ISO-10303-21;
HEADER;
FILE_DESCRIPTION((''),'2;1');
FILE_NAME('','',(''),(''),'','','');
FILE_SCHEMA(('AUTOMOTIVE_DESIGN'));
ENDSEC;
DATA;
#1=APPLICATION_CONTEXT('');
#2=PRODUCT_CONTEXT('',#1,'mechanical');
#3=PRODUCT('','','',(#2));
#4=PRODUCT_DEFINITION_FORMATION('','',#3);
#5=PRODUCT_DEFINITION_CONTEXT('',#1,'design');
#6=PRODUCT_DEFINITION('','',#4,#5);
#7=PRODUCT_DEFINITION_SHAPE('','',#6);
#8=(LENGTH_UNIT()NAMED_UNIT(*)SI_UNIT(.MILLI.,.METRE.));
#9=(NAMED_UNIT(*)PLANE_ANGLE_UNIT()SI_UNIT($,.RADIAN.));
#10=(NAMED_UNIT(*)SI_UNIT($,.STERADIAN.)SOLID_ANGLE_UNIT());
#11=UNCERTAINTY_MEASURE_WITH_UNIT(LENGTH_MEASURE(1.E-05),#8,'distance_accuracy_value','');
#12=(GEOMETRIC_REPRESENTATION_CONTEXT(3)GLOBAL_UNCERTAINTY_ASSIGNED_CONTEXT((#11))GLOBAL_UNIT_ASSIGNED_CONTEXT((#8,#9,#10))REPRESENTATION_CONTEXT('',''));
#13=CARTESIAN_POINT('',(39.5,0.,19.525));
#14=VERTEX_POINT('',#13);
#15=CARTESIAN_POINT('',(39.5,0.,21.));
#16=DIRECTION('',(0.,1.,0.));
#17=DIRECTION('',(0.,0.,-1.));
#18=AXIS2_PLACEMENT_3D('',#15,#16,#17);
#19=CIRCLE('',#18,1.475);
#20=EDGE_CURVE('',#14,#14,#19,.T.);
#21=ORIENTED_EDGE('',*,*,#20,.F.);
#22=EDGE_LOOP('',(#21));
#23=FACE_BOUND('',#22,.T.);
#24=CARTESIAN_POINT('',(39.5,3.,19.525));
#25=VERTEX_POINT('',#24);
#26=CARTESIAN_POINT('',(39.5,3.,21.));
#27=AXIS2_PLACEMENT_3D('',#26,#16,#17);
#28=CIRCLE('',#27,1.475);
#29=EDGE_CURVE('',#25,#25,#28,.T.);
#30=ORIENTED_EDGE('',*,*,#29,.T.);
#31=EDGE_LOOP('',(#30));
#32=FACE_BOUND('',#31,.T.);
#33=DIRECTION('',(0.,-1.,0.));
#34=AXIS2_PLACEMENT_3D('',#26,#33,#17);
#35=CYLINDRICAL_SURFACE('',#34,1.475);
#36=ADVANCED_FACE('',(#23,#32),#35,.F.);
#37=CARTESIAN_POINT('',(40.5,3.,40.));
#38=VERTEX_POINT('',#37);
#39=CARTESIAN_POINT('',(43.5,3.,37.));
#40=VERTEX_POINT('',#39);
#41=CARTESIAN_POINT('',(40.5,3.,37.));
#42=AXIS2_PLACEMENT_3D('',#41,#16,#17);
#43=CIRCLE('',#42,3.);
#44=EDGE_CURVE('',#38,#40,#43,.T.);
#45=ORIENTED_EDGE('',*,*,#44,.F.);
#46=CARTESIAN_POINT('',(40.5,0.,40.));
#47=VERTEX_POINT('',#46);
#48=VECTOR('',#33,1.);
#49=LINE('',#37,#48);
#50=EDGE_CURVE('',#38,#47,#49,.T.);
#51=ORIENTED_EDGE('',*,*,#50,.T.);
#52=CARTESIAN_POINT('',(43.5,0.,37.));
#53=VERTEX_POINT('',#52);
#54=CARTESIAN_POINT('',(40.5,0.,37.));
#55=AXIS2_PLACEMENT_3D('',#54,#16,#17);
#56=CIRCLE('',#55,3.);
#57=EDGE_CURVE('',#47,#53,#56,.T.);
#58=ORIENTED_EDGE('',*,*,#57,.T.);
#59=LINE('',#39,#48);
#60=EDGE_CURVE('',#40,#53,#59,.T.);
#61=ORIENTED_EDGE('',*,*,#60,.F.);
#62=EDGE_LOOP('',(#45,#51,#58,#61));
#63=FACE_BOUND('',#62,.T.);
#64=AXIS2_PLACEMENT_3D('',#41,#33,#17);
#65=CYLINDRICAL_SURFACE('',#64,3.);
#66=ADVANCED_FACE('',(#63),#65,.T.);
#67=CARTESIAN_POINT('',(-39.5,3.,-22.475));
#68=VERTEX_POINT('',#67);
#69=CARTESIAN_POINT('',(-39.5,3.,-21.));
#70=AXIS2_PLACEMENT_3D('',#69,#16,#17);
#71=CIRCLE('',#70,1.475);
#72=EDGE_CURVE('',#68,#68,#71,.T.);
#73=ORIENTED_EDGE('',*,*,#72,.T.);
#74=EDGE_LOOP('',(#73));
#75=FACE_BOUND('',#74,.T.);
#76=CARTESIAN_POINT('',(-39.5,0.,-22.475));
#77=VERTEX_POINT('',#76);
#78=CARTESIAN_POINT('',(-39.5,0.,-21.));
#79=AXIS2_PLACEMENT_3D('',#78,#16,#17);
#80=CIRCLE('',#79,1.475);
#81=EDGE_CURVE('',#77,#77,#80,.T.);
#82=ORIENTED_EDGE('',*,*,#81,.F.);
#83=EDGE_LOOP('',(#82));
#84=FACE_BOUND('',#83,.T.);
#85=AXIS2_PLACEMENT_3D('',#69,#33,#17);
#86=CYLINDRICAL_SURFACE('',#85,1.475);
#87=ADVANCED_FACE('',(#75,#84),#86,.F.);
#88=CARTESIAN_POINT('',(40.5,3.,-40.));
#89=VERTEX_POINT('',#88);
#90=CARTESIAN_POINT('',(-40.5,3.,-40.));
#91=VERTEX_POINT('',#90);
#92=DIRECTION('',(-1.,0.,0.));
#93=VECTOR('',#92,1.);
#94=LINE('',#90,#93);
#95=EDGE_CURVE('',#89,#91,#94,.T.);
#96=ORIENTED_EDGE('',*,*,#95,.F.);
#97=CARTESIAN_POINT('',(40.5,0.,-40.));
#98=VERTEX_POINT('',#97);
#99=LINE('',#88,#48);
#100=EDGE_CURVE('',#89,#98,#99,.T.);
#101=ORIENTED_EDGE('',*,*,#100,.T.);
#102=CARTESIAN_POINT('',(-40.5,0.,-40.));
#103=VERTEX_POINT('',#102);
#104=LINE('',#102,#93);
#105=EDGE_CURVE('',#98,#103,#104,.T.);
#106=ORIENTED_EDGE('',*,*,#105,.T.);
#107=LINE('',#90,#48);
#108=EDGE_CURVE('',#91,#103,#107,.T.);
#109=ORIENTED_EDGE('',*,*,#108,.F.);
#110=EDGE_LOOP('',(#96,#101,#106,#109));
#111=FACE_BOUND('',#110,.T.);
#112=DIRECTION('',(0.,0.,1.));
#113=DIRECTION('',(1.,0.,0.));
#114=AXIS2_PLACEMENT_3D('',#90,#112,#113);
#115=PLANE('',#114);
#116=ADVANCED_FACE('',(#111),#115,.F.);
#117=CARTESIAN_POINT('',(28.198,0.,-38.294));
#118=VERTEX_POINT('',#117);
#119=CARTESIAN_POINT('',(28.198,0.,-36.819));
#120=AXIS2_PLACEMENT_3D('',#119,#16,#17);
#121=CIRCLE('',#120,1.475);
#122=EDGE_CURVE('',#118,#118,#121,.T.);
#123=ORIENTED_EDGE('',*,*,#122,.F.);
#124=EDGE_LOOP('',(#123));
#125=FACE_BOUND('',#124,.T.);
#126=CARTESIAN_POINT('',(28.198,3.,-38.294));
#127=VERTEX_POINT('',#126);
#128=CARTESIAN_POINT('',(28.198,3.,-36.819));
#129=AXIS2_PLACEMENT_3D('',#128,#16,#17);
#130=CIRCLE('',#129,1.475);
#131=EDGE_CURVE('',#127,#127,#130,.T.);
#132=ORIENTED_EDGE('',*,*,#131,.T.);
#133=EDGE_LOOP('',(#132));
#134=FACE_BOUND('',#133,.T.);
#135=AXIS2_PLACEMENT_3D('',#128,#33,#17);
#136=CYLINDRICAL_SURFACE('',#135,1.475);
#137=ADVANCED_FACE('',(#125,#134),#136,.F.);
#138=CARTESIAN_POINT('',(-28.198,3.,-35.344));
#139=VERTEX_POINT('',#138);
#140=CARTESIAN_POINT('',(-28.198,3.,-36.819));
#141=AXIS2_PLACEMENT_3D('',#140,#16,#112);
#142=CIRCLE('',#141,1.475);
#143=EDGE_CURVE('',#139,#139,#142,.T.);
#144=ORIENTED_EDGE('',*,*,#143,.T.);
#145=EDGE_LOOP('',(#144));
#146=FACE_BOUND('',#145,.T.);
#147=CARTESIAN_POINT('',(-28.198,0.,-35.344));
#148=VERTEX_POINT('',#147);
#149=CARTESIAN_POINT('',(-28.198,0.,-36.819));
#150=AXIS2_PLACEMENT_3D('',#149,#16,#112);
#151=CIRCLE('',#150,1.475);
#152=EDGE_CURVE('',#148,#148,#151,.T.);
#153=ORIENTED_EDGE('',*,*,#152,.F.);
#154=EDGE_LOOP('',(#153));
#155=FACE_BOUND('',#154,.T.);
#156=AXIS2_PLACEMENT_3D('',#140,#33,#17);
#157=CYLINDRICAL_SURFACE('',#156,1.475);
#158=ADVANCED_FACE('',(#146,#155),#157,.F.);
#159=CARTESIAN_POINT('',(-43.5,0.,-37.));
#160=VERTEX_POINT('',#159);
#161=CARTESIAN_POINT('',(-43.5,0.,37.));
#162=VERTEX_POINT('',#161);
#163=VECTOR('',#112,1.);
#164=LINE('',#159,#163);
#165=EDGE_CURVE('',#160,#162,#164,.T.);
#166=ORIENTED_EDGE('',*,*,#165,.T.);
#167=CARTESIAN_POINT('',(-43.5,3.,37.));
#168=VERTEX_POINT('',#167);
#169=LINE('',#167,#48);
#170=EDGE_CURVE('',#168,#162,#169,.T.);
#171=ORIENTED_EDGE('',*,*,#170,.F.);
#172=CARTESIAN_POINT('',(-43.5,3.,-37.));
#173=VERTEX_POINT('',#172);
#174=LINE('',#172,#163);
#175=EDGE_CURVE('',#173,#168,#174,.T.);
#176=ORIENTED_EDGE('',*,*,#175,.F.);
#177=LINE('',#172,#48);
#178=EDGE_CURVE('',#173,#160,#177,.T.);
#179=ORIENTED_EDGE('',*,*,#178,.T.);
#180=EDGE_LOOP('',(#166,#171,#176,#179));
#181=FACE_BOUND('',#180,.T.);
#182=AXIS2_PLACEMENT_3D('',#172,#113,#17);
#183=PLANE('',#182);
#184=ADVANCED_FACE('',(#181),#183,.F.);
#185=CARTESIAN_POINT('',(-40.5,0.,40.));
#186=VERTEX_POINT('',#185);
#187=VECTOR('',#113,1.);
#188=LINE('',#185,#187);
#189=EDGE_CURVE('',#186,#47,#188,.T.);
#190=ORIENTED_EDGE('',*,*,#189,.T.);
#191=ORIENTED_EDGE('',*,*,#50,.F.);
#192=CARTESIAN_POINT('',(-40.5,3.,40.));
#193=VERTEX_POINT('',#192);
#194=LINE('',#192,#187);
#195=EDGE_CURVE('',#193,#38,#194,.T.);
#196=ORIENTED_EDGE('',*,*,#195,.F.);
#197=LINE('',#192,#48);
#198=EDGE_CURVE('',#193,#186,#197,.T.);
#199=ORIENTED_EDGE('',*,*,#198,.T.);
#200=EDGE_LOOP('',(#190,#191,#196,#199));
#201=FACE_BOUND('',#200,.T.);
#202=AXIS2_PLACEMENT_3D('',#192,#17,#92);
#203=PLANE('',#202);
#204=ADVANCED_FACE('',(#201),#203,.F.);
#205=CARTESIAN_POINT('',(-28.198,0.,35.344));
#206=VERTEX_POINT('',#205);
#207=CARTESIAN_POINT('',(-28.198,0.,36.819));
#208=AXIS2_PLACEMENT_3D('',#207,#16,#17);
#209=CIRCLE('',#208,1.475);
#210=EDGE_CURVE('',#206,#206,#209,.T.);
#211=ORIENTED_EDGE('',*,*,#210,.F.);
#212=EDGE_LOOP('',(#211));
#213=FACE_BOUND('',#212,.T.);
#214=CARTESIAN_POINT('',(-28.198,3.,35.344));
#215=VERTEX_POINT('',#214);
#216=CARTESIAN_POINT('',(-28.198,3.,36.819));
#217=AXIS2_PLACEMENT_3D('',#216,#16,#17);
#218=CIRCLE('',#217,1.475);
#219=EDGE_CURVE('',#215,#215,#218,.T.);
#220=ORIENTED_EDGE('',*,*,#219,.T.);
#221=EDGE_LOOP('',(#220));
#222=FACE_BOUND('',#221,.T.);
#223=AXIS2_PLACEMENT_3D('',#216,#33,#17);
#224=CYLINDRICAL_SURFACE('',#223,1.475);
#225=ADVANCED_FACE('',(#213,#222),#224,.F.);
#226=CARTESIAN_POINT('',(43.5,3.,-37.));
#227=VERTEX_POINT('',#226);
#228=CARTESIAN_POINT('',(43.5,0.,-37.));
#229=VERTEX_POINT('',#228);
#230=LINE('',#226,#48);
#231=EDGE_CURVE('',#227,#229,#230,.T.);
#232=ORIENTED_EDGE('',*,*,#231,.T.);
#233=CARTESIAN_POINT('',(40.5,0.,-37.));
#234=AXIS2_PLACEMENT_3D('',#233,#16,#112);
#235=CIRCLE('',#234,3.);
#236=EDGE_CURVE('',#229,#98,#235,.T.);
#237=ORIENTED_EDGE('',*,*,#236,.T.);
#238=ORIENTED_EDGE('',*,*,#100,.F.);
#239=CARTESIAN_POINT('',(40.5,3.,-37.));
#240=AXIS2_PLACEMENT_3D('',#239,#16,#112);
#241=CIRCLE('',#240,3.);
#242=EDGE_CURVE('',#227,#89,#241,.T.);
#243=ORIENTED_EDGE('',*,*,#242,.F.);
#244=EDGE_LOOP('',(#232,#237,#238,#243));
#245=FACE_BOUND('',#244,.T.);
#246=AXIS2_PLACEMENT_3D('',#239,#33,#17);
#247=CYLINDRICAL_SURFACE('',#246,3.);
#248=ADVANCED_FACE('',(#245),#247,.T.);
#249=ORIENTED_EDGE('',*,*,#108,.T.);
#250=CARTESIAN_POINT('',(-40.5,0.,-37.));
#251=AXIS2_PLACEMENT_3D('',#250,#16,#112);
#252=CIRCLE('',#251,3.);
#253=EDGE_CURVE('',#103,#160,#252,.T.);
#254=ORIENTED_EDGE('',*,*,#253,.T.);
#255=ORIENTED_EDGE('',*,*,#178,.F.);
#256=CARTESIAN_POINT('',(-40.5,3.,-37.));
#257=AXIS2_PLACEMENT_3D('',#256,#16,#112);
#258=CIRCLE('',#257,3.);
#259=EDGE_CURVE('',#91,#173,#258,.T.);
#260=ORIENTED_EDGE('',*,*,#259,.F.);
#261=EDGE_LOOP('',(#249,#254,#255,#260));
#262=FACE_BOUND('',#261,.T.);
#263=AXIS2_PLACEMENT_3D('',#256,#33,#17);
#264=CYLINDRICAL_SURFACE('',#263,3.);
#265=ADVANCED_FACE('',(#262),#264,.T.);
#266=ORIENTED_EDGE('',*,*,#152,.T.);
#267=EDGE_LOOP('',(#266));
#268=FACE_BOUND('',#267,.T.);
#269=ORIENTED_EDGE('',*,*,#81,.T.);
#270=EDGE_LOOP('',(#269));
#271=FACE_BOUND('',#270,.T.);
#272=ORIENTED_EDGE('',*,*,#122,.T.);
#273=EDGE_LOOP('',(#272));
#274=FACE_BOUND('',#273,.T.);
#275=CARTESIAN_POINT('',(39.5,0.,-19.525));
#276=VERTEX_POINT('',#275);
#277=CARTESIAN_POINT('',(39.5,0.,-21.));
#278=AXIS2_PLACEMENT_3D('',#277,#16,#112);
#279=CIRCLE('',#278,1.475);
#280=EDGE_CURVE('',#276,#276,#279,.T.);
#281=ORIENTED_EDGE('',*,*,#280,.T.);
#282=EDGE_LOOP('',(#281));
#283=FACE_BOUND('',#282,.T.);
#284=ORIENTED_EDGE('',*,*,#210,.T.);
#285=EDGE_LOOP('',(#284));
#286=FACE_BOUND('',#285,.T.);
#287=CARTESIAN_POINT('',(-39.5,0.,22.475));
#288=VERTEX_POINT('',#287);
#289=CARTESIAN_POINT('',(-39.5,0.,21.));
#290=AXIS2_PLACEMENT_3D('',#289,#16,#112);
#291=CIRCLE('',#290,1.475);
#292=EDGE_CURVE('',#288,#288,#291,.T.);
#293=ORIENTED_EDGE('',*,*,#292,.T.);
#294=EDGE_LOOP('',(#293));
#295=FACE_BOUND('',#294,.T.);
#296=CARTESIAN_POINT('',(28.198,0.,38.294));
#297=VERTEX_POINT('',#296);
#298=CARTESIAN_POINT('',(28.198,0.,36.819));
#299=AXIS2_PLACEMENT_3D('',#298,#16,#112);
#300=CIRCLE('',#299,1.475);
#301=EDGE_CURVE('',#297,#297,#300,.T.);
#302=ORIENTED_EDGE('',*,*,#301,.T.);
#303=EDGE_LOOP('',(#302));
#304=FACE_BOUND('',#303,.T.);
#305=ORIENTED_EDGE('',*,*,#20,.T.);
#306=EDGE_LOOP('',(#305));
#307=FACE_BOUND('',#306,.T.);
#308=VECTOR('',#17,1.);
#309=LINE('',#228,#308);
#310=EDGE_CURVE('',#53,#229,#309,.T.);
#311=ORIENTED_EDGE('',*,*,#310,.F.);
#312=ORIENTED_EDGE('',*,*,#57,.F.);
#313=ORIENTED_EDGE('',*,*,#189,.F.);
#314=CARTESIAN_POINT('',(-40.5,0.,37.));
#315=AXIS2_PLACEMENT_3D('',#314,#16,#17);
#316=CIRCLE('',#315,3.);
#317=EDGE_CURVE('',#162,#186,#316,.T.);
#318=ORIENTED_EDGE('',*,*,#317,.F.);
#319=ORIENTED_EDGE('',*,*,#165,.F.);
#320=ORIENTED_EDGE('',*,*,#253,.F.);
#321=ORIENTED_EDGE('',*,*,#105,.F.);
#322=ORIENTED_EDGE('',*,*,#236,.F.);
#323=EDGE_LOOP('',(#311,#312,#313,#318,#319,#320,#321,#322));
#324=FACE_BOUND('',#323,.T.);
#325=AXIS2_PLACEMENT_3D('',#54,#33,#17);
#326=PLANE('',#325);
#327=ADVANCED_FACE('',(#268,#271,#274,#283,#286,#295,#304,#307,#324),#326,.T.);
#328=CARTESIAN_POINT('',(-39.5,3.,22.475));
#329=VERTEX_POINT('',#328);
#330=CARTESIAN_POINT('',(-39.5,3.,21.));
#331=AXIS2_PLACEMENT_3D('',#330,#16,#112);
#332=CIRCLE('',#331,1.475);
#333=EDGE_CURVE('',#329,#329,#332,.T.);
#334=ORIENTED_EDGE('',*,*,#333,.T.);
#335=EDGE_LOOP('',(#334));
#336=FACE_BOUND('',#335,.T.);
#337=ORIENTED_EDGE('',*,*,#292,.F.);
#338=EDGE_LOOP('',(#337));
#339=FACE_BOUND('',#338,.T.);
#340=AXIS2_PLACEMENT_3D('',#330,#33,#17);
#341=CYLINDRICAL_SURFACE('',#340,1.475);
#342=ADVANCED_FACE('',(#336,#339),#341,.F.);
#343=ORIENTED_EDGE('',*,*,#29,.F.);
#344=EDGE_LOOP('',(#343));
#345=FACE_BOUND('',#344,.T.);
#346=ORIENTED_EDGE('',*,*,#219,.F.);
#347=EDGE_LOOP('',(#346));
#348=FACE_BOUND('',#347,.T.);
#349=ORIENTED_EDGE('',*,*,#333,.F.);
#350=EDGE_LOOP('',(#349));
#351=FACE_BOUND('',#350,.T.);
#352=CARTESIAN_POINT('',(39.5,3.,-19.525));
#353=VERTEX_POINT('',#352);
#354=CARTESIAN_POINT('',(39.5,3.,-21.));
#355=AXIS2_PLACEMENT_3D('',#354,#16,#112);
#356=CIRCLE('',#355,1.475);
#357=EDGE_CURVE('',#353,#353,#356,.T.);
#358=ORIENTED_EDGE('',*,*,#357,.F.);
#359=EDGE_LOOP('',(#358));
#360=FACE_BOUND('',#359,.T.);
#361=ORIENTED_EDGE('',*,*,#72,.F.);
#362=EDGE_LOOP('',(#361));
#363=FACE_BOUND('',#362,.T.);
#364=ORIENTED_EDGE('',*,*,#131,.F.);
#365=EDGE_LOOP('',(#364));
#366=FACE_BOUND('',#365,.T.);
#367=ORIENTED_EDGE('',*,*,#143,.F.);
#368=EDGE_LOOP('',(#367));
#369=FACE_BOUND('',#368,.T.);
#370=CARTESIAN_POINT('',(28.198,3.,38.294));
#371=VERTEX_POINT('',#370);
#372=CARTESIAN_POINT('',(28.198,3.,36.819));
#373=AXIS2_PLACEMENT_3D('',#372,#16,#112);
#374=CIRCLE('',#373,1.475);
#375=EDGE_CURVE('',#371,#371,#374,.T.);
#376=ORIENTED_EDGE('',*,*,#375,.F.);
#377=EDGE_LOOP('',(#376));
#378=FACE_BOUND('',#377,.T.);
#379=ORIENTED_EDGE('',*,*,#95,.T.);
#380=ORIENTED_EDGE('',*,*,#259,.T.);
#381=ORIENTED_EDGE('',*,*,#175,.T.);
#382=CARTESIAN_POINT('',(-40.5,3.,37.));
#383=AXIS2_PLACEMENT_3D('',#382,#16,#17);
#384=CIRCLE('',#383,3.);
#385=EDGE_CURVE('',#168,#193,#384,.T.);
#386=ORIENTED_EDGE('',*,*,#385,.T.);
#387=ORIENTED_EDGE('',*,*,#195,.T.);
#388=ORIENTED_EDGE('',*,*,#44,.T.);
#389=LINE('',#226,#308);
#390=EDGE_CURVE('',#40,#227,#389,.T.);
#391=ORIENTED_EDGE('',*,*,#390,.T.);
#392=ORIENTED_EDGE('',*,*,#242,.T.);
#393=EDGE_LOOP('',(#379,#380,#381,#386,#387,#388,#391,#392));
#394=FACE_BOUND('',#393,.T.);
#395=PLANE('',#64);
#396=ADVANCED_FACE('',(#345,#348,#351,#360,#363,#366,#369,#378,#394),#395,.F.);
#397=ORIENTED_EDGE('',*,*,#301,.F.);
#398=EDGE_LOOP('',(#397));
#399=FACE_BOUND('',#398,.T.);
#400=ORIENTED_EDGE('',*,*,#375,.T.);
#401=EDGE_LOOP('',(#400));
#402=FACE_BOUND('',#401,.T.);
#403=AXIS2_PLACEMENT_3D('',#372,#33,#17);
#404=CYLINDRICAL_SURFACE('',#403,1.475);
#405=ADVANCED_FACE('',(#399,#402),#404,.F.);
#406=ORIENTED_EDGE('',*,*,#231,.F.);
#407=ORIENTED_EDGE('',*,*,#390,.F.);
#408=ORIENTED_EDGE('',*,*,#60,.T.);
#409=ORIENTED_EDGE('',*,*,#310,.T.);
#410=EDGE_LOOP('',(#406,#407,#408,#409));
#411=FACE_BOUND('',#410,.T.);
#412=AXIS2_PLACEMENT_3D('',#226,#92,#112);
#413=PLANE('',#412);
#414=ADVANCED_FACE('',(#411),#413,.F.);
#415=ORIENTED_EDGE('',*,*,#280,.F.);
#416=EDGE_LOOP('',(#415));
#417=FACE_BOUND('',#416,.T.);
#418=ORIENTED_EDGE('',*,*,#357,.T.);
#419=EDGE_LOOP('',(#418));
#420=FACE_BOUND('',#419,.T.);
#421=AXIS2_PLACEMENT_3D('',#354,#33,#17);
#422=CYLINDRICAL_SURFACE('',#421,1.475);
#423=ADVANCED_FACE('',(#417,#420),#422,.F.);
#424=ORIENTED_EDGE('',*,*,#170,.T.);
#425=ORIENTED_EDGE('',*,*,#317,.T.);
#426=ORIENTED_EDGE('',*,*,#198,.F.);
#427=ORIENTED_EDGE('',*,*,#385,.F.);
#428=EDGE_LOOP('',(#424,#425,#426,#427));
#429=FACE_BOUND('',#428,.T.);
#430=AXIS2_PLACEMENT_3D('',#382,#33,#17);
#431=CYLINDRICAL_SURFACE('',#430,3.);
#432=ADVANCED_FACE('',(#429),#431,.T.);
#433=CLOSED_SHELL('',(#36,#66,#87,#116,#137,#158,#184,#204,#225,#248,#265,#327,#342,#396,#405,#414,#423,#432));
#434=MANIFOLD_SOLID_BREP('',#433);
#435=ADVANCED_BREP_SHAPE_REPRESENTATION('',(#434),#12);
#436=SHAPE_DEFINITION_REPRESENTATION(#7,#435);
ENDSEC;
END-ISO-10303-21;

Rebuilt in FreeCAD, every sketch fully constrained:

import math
import FreeCAD as App
import Part
import Sketcher
from FreeCAD import Vector
Q = App.Units.Quantity

doc = App.newDocument("Part")
body = doc.addObject("PartDesign::Body", "Body")

sketch1 = body.newObject("Sketcher::SketchObject", "Sketch")
sketch1.AttachmentSupport = (doc.getObject("XZ_Plane"), [""])
sketch1.MapMode = "FlatFace"
sketch1.addGeometry(Part.LineSegment(Vector(40.5, -40, 0), Vector(-40.5, -40, 0)), False)
sketch1.addGeometry(Part.ArcOfCircle(Part.Circle(Vector(-40.5, -37, 0), Vector(0, 0, 1), 3), math.radians(180), math.radians(270)), False)
sketch1.addGeometry(Part.LineSegment(Vector(-43.5, -37, 0), Vector(-43.5, 37, 0)), False)
sketch1.addGeometry(Part.ArcOfCircle(Part.Circle(Vector(-40.5, 37, 0), Vector(0, 0, 1), 3), math.radians(90), math.radians(180)), False)
sketch1.addGeometry(Part.LineSegment(Vector(-40.5, 40, 0), Vector(40.5, 40, 0)), False)
sketch1.addGeometry(Part.ArcOfCircle(Part.Circle(Vector(40.5, 37, 0), Vector(0, 0, 1), 3), math.radians(0), math.radians(90)), False)
sketch1.addGeometry(Part.LineSegment(Vector(43.5, 37, 0), Vector(43.5, -37, 0)), False)
sketch1.addGeometry(Part.ArcOfCircle(Part.Circle(Vector(40.5, -37, 0), Vector(0, 0, 1), 3), math.radians(-90), math.radians(0)), False)
sketch1.addGeometry(Part.Circle(Vector(28.198, 36.819, 0), Vector(0, 0, 1), 1.475), False)
sketch1.addGeometry(Part.Circle(Vector(39.5, 21, 0), Vector(0, 0, 1), 1.475), False)
sketch1.addGeometry(Part.Circle(Vector(-28.198, 36.819, 0), Vector(0, 0, 1), 1.475), False)
sketch1.addGeometry(Part.Circle(Vector(-39.5, 21, 0), Vector(0, 0, 1), 1.475), False)
sketch1.addGeometry(Part.Circle(Vector(39.5, -21, 0), Vector(0, 0, 1), 1.475), False)
sketch1.addGeometry(Part.Circle(Vector(28.198, -36.819, 0), Vector(0, 0, 1), 1.475), False)
sketch1.addGeometry(Part.Circle(Vector(-39.5, -21, 0), Vector(0, 0, 1), 1.475), False)
sketch1.addGeometry(Part.Circle(Vector(-28.198, -36.819, 0), Vector(0, 0, 1), 1.475), False)
sketch1.addConstraint(Sketcher.Constraint("Tangent", 0, 2, 1, 2))
sketch1.addConstraint(Sketcher.Constraint("Tangent", 1, 1, 2, 1))
sketch1.addConstraint(Sketcher.Constraint("Tangent", 2, 2, 3, 2))
sketch1.addConstraint(Sketcher.Constraint("Tangent", 3, 1, 4, 1))
sketch1.addConstraint(Sketcher.Constraint("Tangent", 4, 2, 5, 2))
sketch1.addConstraint(Sketcher.Constraint("Tangent", 5, 1, 6, 1))
sketch1.addConstraint(Sketcher.Constraint("Tangent", 6, 2, 7, 2))
sketch1.addConstraint(Sketcher.Constraint("Tangent", 7, 1, 0, 1))
sketch1.addConstraint(Sketcher.Constraint("Horizontal", 0))
sketch1.addConstraint(Sketcher.Constraint("Vertical", 2))
sketch1.addConstraint(Sketcher.Constraint("Horizontal", 4))
sketch1.addConstraint(Sketcher.Constraint("Vertical", 6))
sketch1.addConstraint(Sketcher.Constraint("Equal", 1, 3))
sketch1.addConstraint(Sketcher.Constraint("Equal", 3, 5))
sketch1.addConstraint(Sketcher.Constraint("Equal", 5, 7))
sketch1.addConstraint(Sketcher.Constraint("Equal", 8, 9))
sketch1.addConstraint(Sketcher.Constraint("Equal", 9, 10))
sketch1.addConstraint(Sketcher.Constraint("Equal", 10, 11))
sketch1.addConstraint(Sketcher.Constraint("Equal", 11, 12))
sketch1.addConstraint(Sketcher.Constraint("Equal", 12, 13))
sketch1.addConstraint(Sketcher.Constraint("Equal", 13, 14))
sketch1.addConstraint(Sketcher.Constraint("Equal", 14, 15))
sketch1.addConstraint(Sketcher.Constraint("Symmetric", 1, 3, 5, 3, -1, 1))
sketch1.addConstraint(Sketcher.Constraint("Symmetric", 11, 3, 12, 3, -1, 1))
sketch1.addConstraint(Sketcher.Constraint("Symmetric", 10, 3, 13, 3, -1, 1))
sketch1.addConstraint(Sketcher.Constraint("Symmetric", 9, 3, 14, 3, -1, 1))
sketch1.addConstraint(Sketcher.Constraint("Symmetric", 8, 3, 15, 3, -1, 1))
sketch1.addConstraint(Sketcher.Constraint("Symmetric", 8, 3, 10, 3, -2))
sketch1.addConstraint(Sketcher.Constraint("Symmetric", 9, 3, 11, 3, -2))
sketch1.addConstraint(Sketcher.Constraint("Radius", 1, Q("3 mm")))
sketch1.addConstraint(Sketcher.Constraint("Diameter", 8, Q("2.95 mm")))
sketch1.addConstraint(Sketcher.Constraint("DistanceX", 0, 2, 0, 1, Q("81 mm")))
sketch1.addConstraint(Sketcher.Constraint("DistanceY", 2, 1, 2, 2, Q("74 mm")))
sketch1.addConstraint(Sketcher.Constraint("DistanceY", -1, 1, 9, 3, Q("21 mm")))
sketch1.addConstraint(Sketcher.Constraint("DistanceX", 9, 3, 5, 3, Q("1 mm")))
sketch1.addConstraint(Sketcher.Constraint("DistanceX", -1, 1, 8, 3, Q("28.198 mm")))
sketch1.addConstraint(Sketcher.Constraint("DistanceY", -1, 1, 8, 3, Q("36.819 mm")))
pad1 = body.newObject("PartDesign::Pad", "Pad")
pad1.Profile = sketch1
pad1.Length = 3
pad1.Reversed = True

doc.recompute()
